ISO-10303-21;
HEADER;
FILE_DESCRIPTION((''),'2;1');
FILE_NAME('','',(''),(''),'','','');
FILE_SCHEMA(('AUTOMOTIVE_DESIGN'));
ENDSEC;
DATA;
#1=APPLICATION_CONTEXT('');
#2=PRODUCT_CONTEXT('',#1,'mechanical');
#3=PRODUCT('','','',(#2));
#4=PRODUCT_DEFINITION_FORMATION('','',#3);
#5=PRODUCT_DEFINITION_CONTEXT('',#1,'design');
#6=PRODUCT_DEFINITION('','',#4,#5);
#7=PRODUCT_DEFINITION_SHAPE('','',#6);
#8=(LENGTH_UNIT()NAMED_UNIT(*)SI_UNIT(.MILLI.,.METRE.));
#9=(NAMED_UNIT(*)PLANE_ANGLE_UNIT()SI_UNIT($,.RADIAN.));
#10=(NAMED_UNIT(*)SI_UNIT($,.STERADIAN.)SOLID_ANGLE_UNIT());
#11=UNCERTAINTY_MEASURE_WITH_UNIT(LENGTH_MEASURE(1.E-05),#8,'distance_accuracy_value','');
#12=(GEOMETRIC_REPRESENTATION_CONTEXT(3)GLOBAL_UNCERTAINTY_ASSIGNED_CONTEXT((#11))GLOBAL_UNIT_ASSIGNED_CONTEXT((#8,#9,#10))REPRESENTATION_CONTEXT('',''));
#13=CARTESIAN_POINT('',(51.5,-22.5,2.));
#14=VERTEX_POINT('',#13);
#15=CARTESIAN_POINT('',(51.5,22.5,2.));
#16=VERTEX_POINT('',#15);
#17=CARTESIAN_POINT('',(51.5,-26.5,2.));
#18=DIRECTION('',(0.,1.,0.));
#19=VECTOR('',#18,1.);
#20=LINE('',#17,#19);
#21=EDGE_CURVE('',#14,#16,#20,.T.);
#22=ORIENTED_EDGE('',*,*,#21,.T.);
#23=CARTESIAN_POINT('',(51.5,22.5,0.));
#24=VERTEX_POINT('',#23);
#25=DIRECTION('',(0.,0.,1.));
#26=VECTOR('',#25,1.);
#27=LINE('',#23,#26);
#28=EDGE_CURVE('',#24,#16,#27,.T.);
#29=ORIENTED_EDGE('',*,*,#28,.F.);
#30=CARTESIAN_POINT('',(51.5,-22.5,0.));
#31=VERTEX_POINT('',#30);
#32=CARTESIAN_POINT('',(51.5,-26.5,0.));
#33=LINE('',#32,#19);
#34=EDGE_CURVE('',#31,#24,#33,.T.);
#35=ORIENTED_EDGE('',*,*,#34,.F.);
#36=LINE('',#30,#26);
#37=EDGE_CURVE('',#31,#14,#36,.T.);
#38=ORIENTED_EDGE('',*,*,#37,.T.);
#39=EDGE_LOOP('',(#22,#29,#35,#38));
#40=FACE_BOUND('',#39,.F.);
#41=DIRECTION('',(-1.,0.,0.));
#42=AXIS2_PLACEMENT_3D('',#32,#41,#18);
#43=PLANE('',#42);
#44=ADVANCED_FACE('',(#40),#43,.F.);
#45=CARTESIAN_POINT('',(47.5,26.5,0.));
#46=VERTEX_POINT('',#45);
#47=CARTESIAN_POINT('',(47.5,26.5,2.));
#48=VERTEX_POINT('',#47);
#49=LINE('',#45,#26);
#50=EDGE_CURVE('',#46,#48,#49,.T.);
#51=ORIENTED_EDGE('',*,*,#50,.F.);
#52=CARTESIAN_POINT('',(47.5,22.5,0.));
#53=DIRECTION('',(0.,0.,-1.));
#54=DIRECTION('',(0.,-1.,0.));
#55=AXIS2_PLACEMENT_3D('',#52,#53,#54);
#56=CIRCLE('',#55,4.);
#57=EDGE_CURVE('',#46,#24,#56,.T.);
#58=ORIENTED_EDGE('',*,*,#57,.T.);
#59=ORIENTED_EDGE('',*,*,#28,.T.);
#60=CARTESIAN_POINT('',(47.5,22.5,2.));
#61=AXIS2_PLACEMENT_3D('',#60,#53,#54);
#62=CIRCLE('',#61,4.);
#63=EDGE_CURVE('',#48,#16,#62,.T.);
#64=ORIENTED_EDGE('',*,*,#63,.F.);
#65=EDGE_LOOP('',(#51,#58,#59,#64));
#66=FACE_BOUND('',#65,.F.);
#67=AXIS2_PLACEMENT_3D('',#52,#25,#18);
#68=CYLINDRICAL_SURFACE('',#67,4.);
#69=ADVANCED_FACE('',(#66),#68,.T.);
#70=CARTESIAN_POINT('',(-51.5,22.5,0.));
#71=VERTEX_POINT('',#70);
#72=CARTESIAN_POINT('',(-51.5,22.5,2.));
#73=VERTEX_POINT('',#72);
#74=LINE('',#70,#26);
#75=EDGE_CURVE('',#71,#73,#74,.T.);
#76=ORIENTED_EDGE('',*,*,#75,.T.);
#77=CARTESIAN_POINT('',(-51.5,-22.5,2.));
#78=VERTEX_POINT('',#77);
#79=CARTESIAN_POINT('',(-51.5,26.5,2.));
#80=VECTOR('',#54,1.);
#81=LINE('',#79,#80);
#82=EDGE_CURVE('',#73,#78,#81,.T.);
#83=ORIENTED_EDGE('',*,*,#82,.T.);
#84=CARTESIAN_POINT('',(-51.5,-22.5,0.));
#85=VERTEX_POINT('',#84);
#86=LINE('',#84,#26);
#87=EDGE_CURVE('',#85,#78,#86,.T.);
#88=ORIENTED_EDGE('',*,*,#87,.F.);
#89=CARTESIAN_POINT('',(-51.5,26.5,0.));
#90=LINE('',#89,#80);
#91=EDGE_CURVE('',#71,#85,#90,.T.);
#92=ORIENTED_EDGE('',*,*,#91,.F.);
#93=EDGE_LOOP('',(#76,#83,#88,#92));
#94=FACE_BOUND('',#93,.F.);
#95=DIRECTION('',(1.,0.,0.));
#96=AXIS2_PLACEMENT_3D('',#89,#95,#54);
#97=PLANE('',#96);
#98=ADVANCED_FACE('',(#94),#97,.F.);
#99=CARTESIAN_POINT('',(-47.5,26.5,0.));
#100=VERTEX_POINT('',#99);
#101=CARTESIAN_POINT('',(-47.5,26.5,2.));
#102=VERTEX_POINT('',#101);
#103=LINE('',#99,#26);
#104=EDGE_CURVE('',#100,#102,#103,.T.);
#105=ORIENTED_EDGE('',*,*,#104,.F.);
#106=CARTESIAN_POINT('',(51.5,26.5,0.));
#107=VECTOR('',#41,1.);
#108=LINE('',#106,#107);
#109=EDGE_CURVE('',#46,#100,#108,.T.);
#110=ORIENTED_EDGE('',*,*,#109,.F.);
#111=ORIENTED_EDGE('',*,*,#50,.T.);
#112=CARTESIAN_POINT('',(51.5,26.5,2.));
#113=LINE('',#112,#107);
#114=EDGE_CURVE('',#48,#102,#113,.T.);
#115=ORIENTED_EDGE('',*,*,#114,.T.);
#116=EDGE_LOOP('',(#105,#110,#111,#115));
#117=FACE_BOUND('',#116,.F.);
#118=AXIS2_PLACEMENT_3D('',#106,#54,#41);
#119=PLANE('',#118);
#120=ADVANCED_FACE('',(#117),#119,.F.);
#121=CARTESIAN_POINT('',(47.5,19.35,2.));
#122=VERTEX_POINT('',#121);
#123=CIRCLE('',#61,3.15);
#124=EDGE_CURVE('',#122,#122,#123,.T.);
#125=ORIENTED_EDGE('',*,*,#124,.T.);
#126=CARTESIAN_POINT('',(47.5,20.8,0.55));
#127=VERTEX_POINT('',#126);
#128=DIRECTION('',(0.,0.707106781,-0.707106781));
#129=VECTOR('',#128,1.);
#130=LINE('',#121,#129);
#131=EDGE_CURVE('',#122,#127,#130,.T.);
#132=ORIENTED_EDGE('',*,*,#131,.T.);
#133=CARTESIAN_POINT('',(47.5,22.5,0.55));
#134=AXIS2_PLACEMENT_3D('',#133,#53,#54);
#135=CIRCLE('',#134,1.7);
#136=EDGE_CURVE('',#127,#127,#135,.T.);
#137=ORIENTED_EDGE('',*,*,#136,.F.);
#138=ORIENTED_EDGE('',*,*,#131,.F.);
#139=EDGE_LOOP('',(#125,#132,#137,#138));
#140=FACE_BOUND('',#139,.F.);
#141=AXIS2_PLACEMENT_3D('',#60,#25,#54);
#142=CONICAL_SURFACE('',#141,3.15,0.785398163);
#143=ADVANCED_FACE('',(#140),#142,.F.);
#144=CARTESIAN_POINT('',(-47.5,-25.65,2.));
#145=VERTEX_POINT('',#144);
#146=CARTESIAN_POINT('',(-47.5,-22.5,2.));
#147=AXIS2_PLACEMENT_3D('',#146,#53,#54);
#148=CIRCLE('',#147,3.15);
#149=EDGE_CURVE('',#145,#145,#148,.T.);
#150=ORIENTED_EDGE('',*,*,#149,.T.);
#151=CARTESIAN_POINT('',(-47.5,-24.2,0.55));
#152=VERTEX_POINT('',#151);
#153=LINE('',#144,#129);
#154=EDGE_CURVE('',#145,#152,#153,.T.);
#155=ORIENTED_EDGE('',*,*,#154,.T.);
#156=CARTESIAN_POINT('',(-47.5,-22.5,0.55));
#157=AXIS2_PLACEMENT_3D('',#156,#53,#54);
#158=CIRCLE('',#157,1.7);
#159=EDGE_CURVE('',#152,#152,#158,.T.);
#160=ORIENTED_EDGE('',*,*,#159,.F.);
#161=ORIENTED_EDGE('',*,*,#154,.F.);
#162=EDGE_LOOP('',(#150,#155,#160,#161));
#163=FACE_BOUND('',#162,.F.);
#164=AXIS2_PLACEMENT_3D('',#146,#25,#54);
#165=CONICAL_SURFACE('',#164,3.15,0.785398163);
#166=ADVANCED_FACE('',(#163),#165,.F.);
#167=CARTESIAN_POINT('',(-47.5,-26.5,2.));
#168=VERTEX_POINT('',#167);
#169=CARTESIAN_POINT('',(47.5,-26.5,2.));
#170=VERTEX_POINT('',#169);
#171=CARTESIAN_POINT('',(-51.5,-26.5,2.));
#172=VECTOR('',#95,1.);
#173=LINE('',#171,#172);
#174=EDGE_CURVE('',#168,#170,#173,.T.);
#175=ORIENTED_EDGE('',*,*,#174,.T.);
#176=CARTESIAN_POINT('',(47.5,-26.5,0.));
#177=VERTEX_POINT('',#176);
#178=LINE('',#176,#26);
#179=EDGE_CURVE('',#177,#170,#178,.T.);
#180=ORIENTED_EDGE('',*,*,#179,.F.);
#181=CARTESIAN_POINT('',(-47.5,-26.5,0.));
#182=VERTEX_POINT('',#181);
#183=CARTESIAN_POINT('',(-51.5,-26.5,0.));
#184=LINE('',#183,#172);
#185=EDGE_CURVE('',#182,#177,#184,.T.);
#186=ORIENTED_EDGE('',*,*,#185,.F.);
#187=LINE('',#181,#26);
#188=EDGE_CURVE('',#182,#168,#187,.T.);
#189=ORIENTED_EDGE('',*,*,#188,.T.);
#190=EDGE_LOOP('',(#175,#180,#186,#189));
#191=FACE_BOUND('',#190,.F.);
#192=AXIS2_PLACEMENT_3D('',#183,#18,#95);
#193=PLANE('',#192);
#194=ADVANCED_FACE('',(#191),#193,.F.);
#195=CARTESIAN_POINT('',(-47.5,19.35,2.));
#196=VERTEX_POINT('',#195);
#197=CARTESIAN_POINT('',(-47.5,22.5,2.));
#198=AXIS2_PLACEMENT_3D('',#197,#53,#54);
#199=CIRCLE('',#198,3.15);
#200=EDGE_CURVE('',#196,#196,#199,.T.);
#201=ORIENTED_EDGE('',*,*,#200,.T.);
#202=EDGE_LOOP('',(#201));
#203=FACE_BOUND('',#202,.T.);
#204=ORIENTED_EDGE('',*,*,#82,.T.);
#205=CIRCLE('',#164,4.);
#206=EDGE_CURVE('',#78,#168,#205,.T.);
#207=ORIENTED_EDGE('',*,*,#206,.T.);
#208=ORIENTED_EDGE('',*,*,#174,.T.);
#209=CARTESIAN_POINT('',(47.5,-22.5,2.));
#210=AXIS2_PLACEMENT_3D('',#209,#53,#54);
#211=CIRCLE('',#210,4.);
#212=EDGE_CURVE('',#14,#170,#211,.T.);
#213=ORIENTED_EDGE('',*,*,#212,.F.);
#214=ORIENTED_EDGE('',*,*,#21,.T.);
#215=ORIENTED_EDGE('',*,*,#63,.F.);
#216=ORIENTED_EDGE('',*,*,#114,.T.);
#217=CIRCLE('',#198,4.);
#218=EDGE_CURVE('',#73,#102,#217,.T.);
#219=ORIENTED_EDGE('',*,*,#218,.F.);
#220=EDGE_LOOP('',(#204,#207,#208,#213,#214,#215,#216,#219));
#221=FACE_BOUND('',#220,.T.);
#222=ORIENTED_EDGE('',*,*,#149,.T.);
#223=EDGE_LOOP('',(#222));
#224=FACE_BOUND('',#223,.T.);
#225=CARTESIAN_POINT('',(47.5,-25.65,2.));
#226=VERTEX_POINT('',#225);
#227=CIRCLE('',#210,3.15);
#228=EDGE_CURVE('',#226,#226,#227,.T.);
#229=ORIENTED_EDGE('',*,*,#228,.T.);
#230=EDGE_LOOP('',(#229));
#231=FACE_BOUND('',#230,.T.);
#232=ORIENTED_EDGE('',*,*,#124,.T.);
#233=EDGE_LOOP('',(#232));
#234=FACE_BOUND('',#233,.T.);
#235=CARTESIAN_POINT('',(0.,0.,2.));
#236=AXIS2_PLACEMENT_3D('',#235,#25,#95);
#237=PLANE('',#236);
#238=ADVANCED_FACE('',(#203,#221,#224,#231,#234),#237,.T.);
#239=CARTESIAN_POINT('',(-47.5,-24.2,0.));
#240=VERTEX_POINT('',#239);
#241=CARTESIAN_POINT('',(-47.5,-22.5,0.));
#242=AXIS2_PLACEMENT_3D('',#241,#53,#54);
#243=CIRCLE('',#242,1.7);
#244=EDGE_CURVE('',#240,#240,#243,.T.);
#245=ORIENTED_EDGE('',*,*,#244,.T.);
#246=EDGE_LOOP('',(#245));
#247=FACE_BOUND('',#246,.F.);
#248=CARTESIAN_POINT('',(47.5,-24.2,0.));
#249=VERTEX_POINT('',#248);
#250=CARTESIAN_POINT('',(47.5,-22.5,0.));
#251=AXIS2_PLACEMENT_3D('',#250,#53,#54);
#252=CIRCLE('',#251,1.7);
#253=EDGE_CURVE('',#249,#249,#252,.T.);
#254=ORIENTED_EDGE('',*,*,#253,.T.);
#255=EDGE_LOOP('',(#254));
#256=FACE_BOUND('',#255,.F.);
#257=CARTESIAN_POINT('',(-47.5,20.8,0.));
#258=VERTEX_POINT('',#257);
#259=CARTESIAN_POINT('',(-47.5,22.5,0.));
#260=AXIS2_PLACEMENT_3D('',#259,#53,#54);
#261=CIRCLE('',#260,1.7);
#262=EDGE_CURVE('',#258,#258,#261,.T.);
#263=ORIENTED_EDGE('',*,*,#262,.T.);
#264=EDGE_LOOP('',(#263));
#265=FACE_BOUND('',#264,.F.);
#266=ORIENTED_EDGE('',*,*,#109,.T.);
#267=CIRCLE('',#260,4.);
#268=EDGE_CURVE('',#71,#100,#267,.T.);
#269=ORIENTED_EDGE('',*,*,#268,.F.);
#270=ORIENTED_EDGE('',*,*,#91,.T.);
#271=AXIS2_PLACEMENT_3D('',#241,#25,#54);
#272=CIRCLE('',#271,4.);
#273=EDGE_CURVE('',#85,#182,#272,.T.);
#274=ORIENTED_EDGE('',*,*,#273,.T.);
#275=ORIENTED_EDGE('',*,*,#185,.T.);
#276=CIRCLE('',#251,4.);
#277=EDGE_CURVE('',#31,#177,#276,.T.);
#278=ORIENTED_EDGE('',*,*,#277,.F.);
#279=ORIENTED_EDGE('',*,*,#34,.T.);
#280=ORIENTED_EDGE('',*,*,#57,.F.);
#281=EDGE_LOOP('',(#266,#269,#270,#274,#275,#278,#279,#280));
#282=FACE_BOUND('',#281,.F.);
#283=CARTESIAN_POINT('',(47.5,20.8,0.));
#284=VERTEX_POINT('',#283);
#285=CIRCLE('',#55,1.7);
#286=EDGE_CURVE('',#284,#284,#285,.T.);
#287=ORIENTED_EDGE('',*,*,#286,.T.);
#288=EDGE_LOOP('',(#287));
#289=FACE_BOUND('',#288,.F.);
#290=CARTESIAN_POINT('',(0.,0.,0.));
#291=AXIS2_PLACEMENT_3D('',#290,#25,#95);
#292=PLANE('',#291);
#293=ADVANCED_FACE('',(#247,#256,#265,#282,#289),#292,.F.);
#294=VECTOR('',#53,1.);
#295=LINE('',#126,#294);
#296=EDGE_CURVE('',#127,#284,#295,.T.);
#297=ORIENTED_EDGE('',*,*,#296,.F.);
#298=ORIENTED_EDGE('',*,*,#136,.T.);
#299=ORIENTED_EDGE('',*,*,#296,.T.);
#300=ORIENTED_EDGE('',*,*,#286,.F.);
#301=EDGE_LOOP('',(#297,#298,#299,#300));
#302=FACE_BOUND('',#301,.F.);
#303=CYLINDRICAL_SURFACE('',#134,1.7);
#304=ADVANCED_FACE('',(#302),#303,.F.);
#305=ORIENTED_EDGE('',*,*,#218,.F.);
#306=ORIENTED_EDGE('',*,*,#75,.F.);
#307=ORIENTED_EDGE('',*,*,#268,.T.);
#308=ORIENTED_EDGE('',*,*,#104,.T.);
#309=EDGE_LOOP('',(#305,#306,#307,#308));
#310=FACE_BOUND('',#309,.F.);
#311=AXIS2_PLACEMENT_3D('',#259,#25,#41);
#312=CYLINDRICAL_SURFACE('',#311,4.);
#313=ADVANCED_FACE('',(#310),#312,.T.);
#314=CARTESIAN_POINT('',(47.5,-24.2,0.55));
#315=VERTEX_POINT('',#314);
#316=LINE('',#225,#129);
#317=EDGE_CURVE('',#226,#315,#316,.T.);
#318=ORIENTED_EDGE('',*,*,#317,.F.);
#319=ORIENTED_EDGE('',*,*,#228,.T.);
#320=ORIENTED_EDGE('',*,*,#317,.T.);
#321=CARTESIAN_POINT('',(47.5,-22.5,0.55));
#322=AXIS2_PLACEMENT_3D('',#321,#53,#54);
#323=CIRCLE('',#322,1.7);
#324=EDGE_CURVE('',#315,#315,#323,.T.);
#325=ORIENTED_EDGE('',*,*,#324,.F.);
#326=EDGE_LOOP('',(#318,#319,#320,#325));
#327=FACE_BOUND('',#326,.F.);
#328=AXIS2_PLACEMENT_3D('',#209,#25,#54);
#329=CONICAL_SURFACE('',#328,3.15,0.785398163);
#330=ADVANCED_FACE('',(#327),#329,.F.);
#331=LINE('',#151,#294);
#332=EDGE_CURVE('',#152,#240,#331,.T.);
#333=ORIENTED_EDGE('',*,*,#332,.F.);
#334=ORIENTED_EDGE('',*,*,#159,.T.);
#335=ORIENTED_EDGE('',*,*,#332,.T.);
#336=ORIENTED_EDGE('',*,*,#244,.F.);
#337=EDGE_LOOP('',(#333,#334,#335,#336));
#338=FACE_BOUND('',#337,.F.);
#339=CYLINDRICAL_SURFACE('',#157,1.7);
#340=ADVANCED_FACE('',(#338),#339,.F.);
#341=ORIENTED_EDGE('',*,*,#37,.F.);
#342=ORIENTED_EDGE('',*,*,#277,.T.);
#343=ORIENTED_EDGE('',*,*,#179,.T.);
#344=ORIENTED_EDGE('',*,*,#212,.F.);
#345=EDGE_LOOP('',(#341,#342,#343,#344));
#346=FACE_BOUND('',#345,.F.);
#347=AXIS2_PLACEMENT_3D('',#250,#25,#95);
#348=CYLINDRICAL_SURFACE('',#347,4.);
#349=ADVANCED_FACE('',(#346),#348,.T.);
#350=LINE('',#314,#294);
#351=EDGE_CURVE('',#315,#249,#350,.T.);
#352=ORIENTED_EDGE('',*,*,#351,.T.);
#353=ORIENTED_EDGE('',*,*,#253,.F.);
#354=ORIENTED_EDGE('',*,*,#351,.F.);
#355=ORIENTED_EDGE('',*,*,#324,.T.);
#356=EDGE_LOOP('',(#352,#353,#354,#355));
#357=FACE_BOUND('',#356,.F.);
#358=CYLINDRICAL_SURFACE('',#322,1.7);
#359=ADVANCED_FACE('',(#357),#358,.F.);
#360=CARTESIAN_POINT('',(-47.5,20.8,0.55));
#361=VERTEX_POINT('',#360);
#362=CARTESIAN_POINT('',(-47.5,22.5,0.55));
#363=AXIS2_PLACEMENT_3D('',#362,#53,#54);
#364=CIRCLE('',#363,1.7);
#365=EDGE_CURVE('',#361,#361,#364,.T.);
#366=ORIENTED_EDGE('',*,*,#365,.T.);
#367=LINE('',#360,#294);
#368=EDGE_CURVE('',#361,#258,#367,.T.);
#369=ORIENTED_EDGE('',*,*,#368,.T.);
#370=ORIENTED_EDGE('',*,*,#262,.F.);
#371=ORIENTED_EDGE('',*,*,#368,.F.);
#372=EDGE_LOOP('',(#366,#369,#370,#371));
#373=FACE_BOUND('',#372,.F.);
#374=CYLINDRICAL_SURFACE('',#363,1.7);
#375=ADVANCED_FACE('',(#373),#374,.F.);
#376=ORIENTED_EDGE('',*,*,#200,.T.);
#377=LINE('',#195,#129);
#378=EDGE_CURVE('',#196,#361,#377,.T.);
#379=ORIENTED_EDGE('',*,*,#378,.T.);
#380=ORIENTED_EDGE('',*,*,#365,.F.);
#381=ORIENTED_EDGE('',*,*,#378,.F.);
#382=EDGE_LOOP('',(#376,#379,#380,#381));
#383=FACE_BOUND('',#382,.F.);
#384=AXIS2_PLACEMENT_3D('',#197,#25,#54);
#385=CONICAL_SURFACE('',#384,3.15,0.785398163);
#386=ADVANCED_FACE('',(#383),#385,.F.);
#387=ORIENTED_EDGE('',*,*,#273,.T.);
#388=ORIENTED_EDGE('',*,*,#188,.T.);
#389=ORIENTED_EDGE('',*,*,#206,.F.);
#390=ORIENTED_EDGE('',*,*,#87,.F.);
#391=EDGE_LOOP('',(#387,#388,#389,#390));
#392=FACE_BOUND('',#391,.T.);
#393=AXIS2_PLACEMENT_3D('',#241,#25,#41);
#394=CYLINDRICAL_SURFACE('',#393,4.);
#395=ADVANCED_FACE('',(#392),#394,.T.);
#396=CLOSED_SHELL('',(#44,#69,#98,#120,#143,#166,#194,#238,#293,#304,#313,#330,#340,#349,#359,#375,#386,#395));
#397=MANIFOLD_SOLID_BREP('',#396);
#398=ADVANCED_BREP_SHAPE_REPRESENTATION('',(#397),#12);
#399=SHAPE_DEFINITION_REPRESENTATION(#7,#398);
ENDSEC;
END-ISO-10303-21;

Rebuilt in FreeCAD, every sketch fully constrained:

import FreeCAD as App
import Part
import Sketcher

V = App.Vector
Q = App.Units.Quantity


def edges_at(feature, points):
    """Names of the edges that pass closest to the given points."""
    edges = feature.Shape.Edges
    near = lambda p: min(range(len(edges)), key=lambda i: edges[i].distToShape(Part.Vertex(*p))[0])
    return sorted({f"Edge{near(p) + 1}" for p in points})

doc = App.newDocument("Part")
body = doc.addObject("PartDesign::Body", "Body")

# Sketch on XY plane
sketch1 = body.newObject("Sketcher::SketchObject", "Sketch")
sketch1.AttachmentSupport = (doc.getObject("XY_Plane"), [""])
sketch1.MapMode = "FlatFace"
sketch1.addGeometry(Part.LineSegment(V(-52, 26, 0), V(-52, -26, 0)), False)
sketch1.addGeometry(Part.LineSegment(V(-52, -26, 0), V(52, -26, 0)), False)
sketch1.addGeometry(Part.LineSegment(V(52, -26, 0), V(52, 26, 0)), False)
sketch1.addGeometry(Part.LineSegment(V(52, 26, 0), V(-52, 26, 0)), False)
sketch1.addConstraint(Sketcher.Constraint("Coincident", 0, 2, 1, 1))
sketch1.addConstraint(Sketcher.Constraint("Coincident", 1, 2, 2, 1))
sketch1.addConstraint(Sketcher.Constraint("Coincident", 2, 2, 3, 1))
sketch1.addConstraint(Sketcher.Constraint("Coincident", 3, 2, 0, 1))
sketch1.addConstraint(Sketcher.Constraint("Vertical", 0))
sketch1.addConstraint(Sketcher.Constraint("Horizontal", 1))
sketch1.addConstraint(Sketcher.Constraint("Vertical", 2))
sketch1.addConstraint(Sketcher.Constraint("Horizontal", 3))
sketch1.addConstraint(Sketcher.Constraint("Symmetric", 0, 2, 2, 2, -1, 1))
sketch1.addConstraint(Sketcher.Constraint("DistanceX", 1, 1, 1, 2, Q("103 mm")))
sketch1.addConstraint(Sketcher.Constraint("DistanceY", 0, 2, 0, 1, Q("53 mm")))
pad1 = body.newObject("PartDesign::Pad", "Pad")
pad1.Profile = sketch1
pad1.Length = 2
doc.recompute()

fillet = body.newObject("PartDesign::Fillet", "Fillet")
fillet.Base = (pad1, edges_at(pad1, [
    (-51.5, -26.5, 1),
    (-51.5, 26.5, 1),
    (51.5, -26.5, 1),
    (51.5, 26.5, 1),
]))
fillet.Radius = 4

# Sketch on XY plane
sketch2 = body.newObject("Sketcher::SketchObject", "Sketch001")
sketch2.AttachmentSupport = (doc.getObject("XY_Plane"), [""])
sketch2.MapMode = "FlatFace"
sketch2.AttachmentOffset = App.Placement(V(0, 0, 2), App.Rotation())
sketch2.addGeometry(Part.Circle(V(-47.5, 22.5, 0), V(0, 0, 1), 1.7), False)
sketch2.addGeometry(Part.Circle(V(-47.5, -22.5, 0), V(0, 0, 1), 1.7), False)
sketch2.addGeometry(Part.Circle(V(47.5, -22.5, 0), V(0, 0, 1), 1.7), False)
sketch2.addGeometry(Part.Circle(V(47.5, 22.5, 0), V(0, 0, 1), 1.7), False)
sketch2.addConstraint(Sketcher.Constraint("Equal", 0, 1))
sketch2.addConstraint(Sketcher.Constraint("Equal", 1, 2))
sketch2.addConstraint(Sketcher.Constraint("Equal", 2, 3))
sketch2.addConstraint(Sketcher.Constraint("Symmetric", 0, 3, 2, 3, -1, 1))
sketch2.addConstraint(Sketcher.Constraint("Symmetric", 1, 3, 3, 3, -1, 1))
sketch2.addConstraint(Sketcher.Constraint("Symmetric", 1, 3, 2, 3, -2))
sketch2.addConstraint(Sketcher.Constraint("Diameter", 0, Q("3.4 mm")))
sketch2.addConstraint(Sketcher.Constraint("DistanceY", 1, 3, 0, 3, Q("45 mm")))
sketch2.addConstraint(Sketcher.Constraint("DistanceX", 1, 3, 2, 3, Q("95 mm")))
doc.recompute()
hole = body.newObject("PartDesign::Hole", "Hole")
hole.Profile = sketch2
hole.ThreadType = "None"
hole.Diameter = 3.4
hole.DepthType = "ThroughAll"
hole.HoleCutType = "Countersink"
hole.HoleCutDiameter = 6.3
hole.HoleCutCountersinkAngle = 90

doc.recompute()
